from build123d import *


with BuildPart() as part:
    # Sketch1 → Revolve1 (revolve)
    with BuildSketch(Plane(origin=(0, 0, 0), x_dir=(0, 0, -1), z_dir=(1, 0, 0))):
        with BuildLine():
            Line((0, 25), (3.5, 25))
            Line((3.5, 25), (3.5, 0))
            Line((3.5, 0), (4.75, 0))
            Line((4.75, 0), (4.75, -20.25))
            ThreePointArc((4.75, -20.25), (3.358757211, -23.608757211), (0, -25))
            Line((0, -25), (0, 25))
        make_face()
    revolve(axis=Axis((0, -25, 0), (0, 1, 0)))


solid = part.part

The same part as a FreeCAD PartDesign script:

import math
import FreeCAD as App
import Part
import Sketcher

doc = App.newDocument("Part")
body = doc.addObject("PartDesign::Body", "Body")

sketch1 = body.newObject("Sketcher::SketchObject", "Sketch")
sketch1.AttachmentSupport = (doc.getObject("YZ_Plane"), [""])
sketch1.MapMode = "FlatFace"
sketch1.addGeometry([
    Part.LineSegment(App.Vector(25, -3.5, 0), App.Vector(25, 0, 0)),
    Part.LineSegment(App.Vector(25, 0, 0), App.Vector(-25, 0, 0)),
    Part.ArcOfCircle(Part.Circle(App.Vector(-20.3, 0, 0), App.Vector(0, 0, 1), 4.7), math.radians(180), math.radians(270)),
    Part.LineSegment(App.Vector(-20.2, -4.8, 0), App.Vector(0, -4.8, 0)),
    Part.LineSegment(App.Vector(0, -4.8, 0), App.Vector(0, -3.5, 0)),
    Part.LineSegment(App.Vector(0, -3.5, 0), App.Vector(25, -3.5, 0)),
], False)
sketch1.addConstraint([
    Sketcher.Constraint("Coincident", 0, 2, 1, 1),
    Sketcher.Constraint("Coincident", 1, 2, 2, 1),
    Sketcher.Constraint("Tangent", 2, 2, 3, 1),
    Sketcher.Constraint("Coincident", 3, 2, 4, 1),
    Sketcher.Constraint("Coincident", 4, 2, 5, 1),
    Sketcher.Constraint("Coincident", 5, 2, 0, 1),
    Sketcher.Constraint("Vertical", 0),
    Sketcher.Constraint("Horizontal", 1),
    Sketcher.Constraint("Horizontal", 3),
    Sketcher.Constraint("Vertical", 4),
    Sketcher.Constraint("Horizontal", 5),
    Sketcher.Constraint("Symmetric", 0, 2, 1, 2, -1, 1),
    Sketcher.Constraint("PointOnObject", 2, 3, -1),
    Sketcher.Constraint("PointOnObject", 3, 2, -2),
    Sketcher.Constraint("DistanceX", 1, 2, 1, 1, 50.0),
    Sketcher.Constraint("Radius", 2, 4.75),
    Sketcher.Constraint("DistanceY", 0, 1, 0, 2, 3.5),
])
revolution = body.newObject("PartDesign::Revolution", "Revolution")
revolution.Profile = sketch1
revolution.ReferenceAxis = (sketch1, ["H_Axis"])
revolution.Angle = 360

doc.recompute()
